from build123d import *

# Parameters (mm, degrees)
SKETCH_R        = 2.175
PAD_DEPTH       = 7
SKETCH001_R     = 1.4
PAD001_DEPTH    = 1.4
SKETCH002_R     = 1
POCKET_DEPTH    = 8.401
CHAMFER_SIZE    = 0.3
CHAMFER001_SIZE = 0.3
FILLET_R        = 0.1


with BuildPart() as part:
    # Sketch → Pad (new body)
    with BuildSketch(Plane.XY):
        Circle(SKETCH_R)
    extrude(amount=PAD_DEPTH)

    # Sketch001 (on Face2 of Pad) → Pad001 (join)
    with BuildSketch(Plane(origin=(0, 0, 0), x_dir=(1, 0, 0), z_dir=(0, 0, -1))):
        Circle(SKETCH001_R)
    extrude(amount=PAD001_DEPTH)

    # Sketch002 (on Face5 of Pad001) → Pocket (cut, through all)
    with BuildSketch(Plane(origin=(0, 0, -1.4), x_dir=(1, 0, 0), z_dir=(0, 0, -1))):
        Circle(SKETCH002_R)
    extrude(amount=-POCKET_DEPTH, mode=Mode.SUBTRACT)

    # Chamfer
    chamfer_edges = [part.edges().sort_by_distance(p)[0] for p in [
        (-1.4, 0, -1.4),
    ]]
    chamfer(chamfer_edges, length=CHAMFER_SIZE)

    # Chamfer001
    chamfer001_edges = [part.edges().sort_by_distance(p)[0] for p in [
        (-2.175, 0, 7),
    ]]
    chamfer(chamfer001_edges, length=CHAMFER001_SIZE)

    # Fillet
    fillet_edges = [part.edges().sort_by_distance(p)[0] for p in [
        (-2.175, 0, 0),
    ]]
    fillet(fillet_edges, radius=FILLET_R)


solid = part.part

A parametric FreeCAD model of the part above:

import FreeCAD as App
import Part
import Sketcher

V = App.Vector


def edges_at(feature, points):
    """Names of the edges that pass closest to the given points."""
    edges = feature.Shape.Edges
    near = lambda p: min(range(len(edges)), key=lambda i: edges[i].distToShape(Part.Vertex(*p))[0])
    return sorted({f"Edge{near(p) + 1}" for p in points})

doc = App.newDocument("Part")
body = doc.addObject("PartDesign::Body", "Body")

# Sketch on XY plane
sketch1 = body.newObject("Sketcher::SketchObject", "Sketch")
sketch1.AttachmentSupport = (doc.getObject("XY_Plane"), [""])
sketch1.MapMode = "FlatFace"
sketch1.addGeometry(Part.Circle(V(0, 0, 0), V(0, 0, 1), 2.175), False)
sketch1.addConstraint(Sketcher.Constraint("Coincident", 0, 3, -1, 1))
sketch1.addConstraint(Sketcher.Constraint("Diameter", 0, 4.35))
pad1 = body.newObject("PartDesign::Pad", "Pad")
pad1.Profile = sketch1
pad1.Length = 7

# Sketch on XY plane
sketch2 = body.newObject("Sketcher::SketchObject", "Sketch001")
sketch2.AttachmentSupport = (doc.getObject("XY_Plane"), [""])
sketch2.MapMode = "FlatFace"
sketch2.addGeometry(Part.Circle(V(0, 0, 0), V(0, 0, 1), 1.4), False)
sketch2.addConstraint(Sketcher.Constraint("Coincident", 0, 3, -1, 1))
sketch2.addConstraint(Sketcher.Constraint("Diameter", 0, 2.8))
pad2 = body.newObject("PartDesign::Pad", "Pad001")
pad2.Profile = sketch2
pad2.Length = 1.4
pad2.Reversed = True

# Sketch on XY plane
sketch3 = body.newObject("Sketcher::SketchObject", "Sketch002")
sketch3.AttachmentSupport = (doc.getObject("XY_Plane"), [""])
sketch3.MapMode = "FlatFace"
sketch3.AttachmentOffset = App.Placement(V(0, 0, -1.4), App.Rotation())
sketch3.addGeometry(Part.Circle(V(0, 0, 0), V(0, 0, 1), 1), False)
sketch3.addConstraint(Sketcher.Constraint("Coincident", 0, 3, -1, 1))
sketch3.addConstraint(Sketcher.Constraint("Diameter", 0, 2.0))
pocket1 = body.newObject("PartDesign::Pocket", "Pocket")
pocket1.Profile = sketch3
pocket1.Type = "ThroughAll"
pocket1.Reversed = True
doc.recompute()

chamfer = body.newObject("PartDesign::Chamfer", "Chamfer")
chamfer.Base = (pocket1, edges_at(pocket1, [(-1.4, 0, -1.4)]))
chamfer.Size = 0.3
doc.recompute()

chamfer2 = body.newObject("PartDesign::Chamfer", "Chamfer001")
chamfer2.Base = (chamfer, edges_at(chamfer, [(-2.175, 0, 7)]))
chamfer2.Size = 0.3
doc.recompute()

fillet = body.newObject("PartDesign::Fillet", "Fillet")
fillet.Base = (chamfer2, edges_at(chamfer2, [(-2.175, 0, 0)]))
fillet.Radius = 0.1

doc.recompute()
